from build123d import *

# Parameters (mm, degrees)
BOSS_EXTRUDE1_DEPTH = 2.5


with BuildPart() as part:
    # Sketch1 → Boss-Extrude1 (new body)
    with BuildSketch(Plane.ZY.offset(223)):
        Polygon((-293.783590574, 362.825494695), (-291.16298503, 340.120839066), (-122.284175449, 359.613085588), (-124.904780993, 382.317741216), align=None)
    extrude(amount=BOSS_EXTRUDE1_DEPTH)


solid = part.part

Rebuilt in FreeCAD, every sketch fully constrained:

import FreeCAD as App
import Part
import Sketcher
Q = App.Units.Quantity

doc = App.newDocument("Part")
body = doc.addObject("PartDesign::Body", "Body")

# Sketch on YZ plane
sketch1 = body.newObject("Sketcher::SketchObject", "Sketch")
sketch1.AttachmentSupport = (doc.getObject("YZ_Plane"), [""])
sketch1.MapMode = "FlatFace"
sketch1.AttachmentOffset = App.Placement(App.Vector(0, 0, -223), App.Rotation())
sketch1.addGeometry(Part.LineSegment(App.Vector(363, -294, 0), App.Vector(340, -291, 0)), False)
sketch1.addGeometry(Part.LineSegment(App.Vector(340, -291, 0), App.Vector(360, -122, 0)), False)
sketch1.addGeometry(Part.LineSegment(App.Vector(360, -122, 0), App.Vector(382, -125, 0)), False)
sketch1.addGeometry(Part.LineSegment(App.Vector(382, -125, 0), App.Vector(363, -294, 0)), False)
sketch1.addConstraint(Sketcher.Constraint("Coincident", 0, 2, 1, 1))
sketch1.addConstraint(Sketcher.Constraint("Coincident", 1, 2, 2, 1))
sketch1.addConstraint(Sketcher.Constraint("Coincident", 2, 2, 3, 1))
sketch1.addConstraint(Sketcher.Constraint("Coincident", 3, 2, 0, 1))
sketch1.addConstraint(Sketcher.Constraint("Perpendicular", 0, 1))
sketch1.addConstraint(Sketcher.Constraint("Perpendicular", 1, 2))
sketch1.addConstraint(Sketcher.Constraint("Perpendicular", 2, 3))
sketch1.addConstraint(Sketcher.Constraint("Distance", 1, Q("170 mm")))
sketch1.addConstraint(Sketcher.Constraint("DistanceX", -1, 1, 0, 2, Q("340.120839 mm")))
sketch1.addConstraint(Sketcher.Constraint("DistanceX", -1, 1, 2, 2, Q("382.317741 mm")))
sketch1.addConstraint(Sketcher.Constraint("DistanceY", 2, 2, -1, 1, Q("124.904781 mm")))
sketch1.addConstraint(Sketcher.Constraint("DistanceY", 3, 2, -1, 1, Q("293.783591 mm")))
pad1 = body.newObject("PartDesign::Pad", "Pad")
pad1.Profile = sketch1
pad1.Length = 2.5
pad1.Reversed = True

doc.recompute()
